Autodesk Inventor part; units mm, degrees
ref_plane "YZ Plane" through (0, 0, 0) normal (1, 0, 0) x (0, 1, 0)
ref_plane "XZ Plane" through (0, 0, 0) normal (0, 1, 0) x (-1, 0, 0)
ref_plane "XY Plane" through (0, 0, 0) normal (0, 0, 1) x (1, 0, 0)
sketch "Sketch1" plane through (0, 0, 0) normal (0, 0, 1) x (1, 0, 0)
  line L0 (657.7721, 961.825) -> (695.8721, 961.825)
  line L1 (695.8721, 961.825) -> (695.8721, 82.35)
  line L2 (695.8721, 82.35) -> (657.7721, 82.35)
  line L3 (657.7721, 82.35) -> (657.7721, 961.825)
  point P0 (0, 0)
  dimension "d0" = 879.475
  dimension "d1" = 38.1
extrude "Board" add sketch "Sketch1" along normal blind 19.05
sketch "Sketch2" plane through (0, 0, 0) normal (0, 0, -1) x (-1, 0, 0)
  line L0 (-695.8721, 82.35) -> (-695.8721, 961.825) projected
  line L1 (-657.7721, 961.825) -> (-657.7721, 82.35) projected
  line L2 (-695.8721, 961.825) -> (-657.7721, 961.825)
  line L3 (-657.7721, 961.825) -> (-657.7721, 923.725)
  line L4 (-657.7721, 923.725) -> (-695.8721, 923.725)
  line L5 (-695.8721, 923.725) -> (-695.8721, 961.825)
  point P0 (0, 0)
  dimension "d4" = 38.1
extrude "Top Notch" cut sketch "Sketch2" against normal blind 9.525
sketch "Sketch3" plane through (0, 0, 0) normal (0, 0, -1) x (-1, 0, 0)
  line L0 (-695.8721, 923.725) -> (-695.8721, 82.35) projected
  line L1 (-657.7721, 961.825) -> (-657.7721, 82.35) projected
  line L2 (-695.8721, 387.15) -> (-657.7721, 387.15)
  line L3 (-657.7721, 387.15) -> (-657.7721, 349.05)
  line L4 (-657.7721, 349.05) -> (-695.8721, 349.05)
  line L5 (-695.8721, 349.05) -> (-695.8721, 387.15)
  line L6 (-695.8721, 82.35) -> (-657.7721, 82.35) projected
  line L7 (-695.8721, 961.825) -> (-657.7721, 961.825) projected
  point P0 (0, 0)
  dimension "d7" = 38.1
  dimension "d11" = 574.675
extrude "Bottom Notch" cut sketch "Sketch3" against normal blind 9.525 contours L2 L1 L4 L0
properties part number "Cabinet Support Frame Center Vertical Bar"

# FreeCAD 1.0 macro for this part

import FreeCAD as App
import Part
import Sketcher
Q = App.Units.Quantity

doc = App.newDocument("Part")
body = doc.addObject("PartDesign::Body", "Body")

# Sketch on XY plane
sketch1 = body.newObject("Sketcher::SketchObject", "Sketch")
sketch1.AttachmentSupport = (doc.getObject("XY_Plane"), [""])
sketch1.MapMode = "FlatFace"
sketch1.addGeometry([
    Part.LineSegment(App.Vector(695.8721, 961.825, 0), App.Vector(657.7721, 961.825, 0)),
    Part.LineSegment(App.Vector(657.7721, 961.825, 0), App.Vector(657.7721, 82.35, 0)),
    Part.LineSegment(App.Vector(657.7721, 82.35, 0), App.Vector(695.8721, 82.35, 0)),
    Part.LineSegment(App.Vector(695.8721, 82.35, 0), App.Vector(695.8721, 961.825, 0)),
], False)
sketch1.addConstraint([
    Sketcher.Constraint("Coincident", 0, 2, 1, 1),
    Sketcher.Constraint("Coincident", 1, 2, 2, 1),
    Sketcher.Constraint("Coincident", 2, 2, 3, 1),
    Sketcher.Constraint("Coincident", 3, 2, 0, 1),
    Sketcher.Constraint("Horizontal", 0),
    Sketcher.Constraint("Vertical", 1),
    Sketcher.Constraint("Horizontal", 2),
    Sketcher.Constraint("Vertical", 3),
    Sketcher.Constraint("DistanceX", 0, 2, 0, 1, Q("1.5 in")),
    Sketcher.Constraint("DistanceY", 1, 2, 1, 1, Q("34.625 in")),
    Sketcher.Constraint("DistanceX", -1, 1, 0, 2, 657.772),
    Sketcher.Constraint("DistanceY", -1, 1, 0, 2, 961.825),
])
pad1 = body.newObject("PartDesign::Pad", "Pad")
pad1.Profile = sketch1
pad1.Length = Q("0.75 in")

# Sketch on XY plane
sketch2 = body.newObject("Sketcher::SketchObject", "Sketch001")
sketch2.AttachmentSupport = (doc.getObject("XY_Plane"), [""])
sketch2.MapMode = "FlatFace"
sketch2.addGeometry([
    Part.LineSegment(App.Vector(695.8721, 961.825, 0), App.Vector(695.8721, 923.725, 0)),
    Part.LineSegment(App.Vector(695.8721, 923.725, 0), App.Vector(657.7721, 923.725, 0)),
    Part.LineSegment(App.Vector(657.7721, 923.725, 0), App.Vector(657.7721, 961.825, 0)),
    Part.LineSegment(App.Vector(657.7721, 961.825, 0), App.Vector(695.8721, 961.825, 0)),
], False)
sketch2.addConstraint([
    Sketcher.Constraint("Coincident", 0, 2, 1, 1),
    Sketcher.Constraint("Coincident", 1, 2, 2, 1),
    Sketcher.Constraint("Coincident", 2, 2, 3, 1),
    Sketcher.Constraint("Coincident", 3, 2, 0, 1),
    Sketcher.Constraint("Vertical", 0),
    Sketcher.Constraint("Horizontal", 1),
    Sketcher.Constraint("Vertical", 2),
    Sketcher.Constraint("Horizontal", 3),
    Sketcher.Constraint("Equal", 3, 0),
    Sketcher.Constraint("DistanceX", 1, 2, 1, 1, Q("1.5 in")),
    Sketcher.Constraint("DistanceX", -1, 1, 0, 2, 695.872),
    Sketcher.Constraint("DistanceY", -1, 1, 0, 2, 923.725),
])
pocket1 = body.newObject("PartDesign::Pocket", "Pocket")
pocket1.Profile = sketch2
pocket1.Length = Q("0.375 in")
pocket1.Reversed = True

# Sketch on XY plane
sketch3 = body.newObject("Sketcher::SketchObject", "Sketch002")
sketch3.AttachmentSupport = (doc.getObject("XY_Plane"), [""])
sketch3.MapMode = "FlatFace"
sketch3.addGeometry([
    Part.LineSegment(App.Vector(657.7721, 387.15, 0), App.Vector(695.8721, 387.15, 0)),
    Part.LineSegment(App.Vector(695.8721, 387.15, 0), App.Vector(695.8721, 349.05, 0)),
    Part.LineSegment(App.Vector(695.8721, 349.05, 0), App.Vector(657.7721, 349.05, 0)),
    Part.LineSegment(App.Vector(657.7721, 349.05, 0), App.Vector(657.7721, 387.15, 0)),
], False)
sketch3.addConstraint([
    Sketcher.Constraint("Coincident", 0, 2, 1, 1),
    Sketcher.Constraint("Coincident", 1, 2, 2, 1),
    Sketcher.Constraint("Coincident", 2, 2, 3, 1),
    Sketcher.Constraint("Coincident", 3, 2, 0, 1),
    Sketcher.Constraint("Horizontal", 0),
    Sketcher.Constraint("Vertical", 1),
    Sketcher.Constraint("Horizontal", 2),
    Sketcher.Constraint("Vertical", 3),
    Sketcher.Constraint("Equal", 2, 1),
    Sketcher.Constraint("DistanceX", 0, 1, 0, 2, Q("1.5 in")),
    Sketcher.Constraint("DistanceX", -1, 1, 0, 2, 695.872),
    Sketcher.Constraint("DistanceY", -1, 1, 0, 2, 387.15),
])
pocket2 = body.newObject("PartDesign::Pocket", "Pocket001")
pocket2.Profile = sketch3
pocket2.Length = Q("0.375 in")
pocket2.Reversed = True

doc.recompute()
